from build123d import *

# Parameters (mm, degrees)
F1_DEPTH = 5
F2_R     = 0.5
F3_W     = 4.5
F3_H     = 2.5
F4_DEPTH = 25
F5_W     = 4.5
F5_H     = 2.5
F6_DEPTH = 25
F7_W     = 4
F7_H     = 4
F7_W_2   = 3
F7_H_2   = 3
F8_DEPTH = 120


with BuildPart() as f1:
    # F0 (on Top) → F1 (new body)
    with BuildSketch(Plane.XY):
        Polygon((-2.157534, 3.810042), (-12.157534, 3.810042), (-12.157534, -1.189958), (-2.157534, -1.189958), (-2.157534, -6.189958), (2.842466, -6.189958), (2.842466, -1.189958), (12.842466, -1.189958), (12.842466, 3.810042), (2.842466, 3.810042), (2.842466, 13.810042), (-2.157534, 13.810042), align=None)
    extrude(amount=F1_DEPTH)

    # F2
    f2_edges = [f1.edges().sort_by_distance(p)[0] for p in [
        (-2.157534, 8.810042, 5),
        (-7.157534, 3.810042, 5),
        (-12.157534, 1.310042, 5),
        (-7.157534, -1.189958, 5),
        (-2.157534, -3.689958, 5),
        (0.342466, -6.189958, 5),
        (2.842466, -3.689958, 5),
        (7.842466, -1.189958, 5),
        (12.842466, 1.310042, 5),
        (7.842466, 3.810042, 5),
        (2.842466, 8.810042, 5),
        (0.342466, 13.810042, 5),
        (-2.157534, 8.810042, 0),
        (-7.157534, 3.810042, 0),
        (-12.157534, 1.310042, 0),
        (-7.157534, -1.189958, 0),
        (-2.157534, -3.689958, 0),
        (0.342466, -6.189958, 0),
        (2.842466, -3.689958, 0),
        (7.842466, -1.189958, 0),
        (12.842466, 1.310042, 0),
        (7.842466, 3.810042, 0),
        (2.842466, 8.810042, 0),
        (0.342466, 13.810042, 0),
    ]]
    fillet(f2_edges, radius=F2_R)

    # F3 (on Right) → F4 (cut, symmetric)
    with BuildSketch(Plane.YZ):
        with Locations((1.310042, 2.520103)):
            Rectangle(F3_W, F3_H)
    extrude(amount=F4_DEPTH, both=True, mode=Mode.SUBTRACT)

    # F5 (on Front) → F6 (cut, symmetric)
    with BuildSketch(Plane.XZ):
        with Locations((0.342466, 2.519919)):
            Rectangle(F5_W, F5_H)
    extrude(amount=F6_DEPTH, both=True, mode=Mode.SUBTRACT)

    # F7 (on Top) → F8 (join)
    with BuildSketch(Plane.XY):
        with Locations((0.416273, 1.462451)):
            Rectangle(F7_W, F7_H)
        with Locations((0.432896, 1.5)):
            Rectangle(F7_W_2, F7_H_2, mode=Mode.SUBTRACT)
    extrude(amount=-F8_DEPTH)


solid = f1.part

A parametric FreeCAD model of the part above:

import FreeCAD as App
import Part
import Sketcher


def edges_at(feature, points):
    """Names of the edges that pass closest to the given points."""
    edges = feature.Shape.Edges
    near = lambda p: min(range(len(edges)), key=lambda i: edges[i].distToShape(Part.Vertex(*p))[0])
    return sorted({f"Edge{near(p) + 1}" for p in points})


def add_polygon(sketch, points):
    """Adds a closed chain of lines whose ends are joined by coincident constraints."""
    first, n = sketch.GeometryCount, len(points)
    for a, b in zip(points, points[1:] + points[:1]):
        sketch.addGeometry(Part.LineSegment(App.Vector(*a, 0), App.Vector(*b, 0)), False)
    for i in range(n):
        sketch.addConstraint(Sketcher.Constraint("Coincident", first + i, 2, first + (i + 1) % n, 1))

doc = App.newDocument("Part")
body = doc.addObject("PartDesign::Body", "Body")

# Sketch on XY plane
sketch1 = body.newObject("Sketcher::SketchObject", "Sketch")
sketch1.AttachmentSupport = (doc.getObject("XY_Plane"), [""])
sketch1.MapMode = "FlatFace"
add_polygon(sketch1, [(-2, 4), (-12, 4), (-12, -1), (-2, -1), (-2, -6), (3, -6), (3, -1), (13, -1), (13, 4), (3, 4), (3, 14), (-2, 14)])  # lines 0-11
sketch1.addConstraint(Sketcher.Constraint("Horizontal", 0))
sketch1.addConstraint(Sketcher.Constraint("Vertical", 1))
sketch1.addConstraint(Sketcher.Constraint("Horizontal", 2))
sketch1.addConstraint(Sketcher.Constraint("Vertical", 3))
sketch1.addConstraint(Sketcher.Constraint("Horizontal", 4))
sketch1.addConstraint(Sketcher.Constraint("Vertical", 5))
sketch1.addConstraint(Sketcher.Constraint("Horizontal", 6))
sketch1.addConstraint(Sketcher.Constraint("Vertical", 7))
sketch1.addConstraint(Sketcher.Constraint("Horizontal", 8))
sketch1.addConstraint(Sketcher.Constraint("Vertical", 9))
sketch1.addConstraint(Sketcher.Constraint("Horizontal", 10))
sketch1.addConstraint(Sketcher.Constraint("Vertical", 11))
sketch1.addConstraint(Sketcher.Constraint("Horizontal", 2, 2, 5, 2))
sketch1.addConstraint(Sketcher.Constraint("Horizontal", 0, 2, 7, 2))
sketch1.addConstraint(Sketcher.Constraint("Vertical", 5, 2, 8, 2))
sketch1.addConstraint(Sketcher.Constraint("Vertical", 3, 2, 10, 2))
sketch1.addConstraint(Sketcher.Constraint("Equal", 2, 6))
sketch1.addConstraint(Sketcher.Constraint("Equal", 10, 1))
sketch1.addConstraint(Sketcher.Constraint("Equal", 1, 3))
sketch1.addConstraint(Sketcher.Constraint("Equal", 8, 9))
sketch1.addConstraint(Sketcher.Constraint("DistanceX", 0, 2, 0, 1, 10.0))
sketch1.addConstraint(Sketcher.Constraint("DistanceX", 4, 1, 4, 2, 5.0))
sketch1.addConstraint(Sketcher.Constraint("DistanceY", 1, 2, -1, 1, 1.189958))
sketch1.addConstraint(Sketcher.Constraint("DistanceX", 0, 2, -1, 1, 12.157534))
pad1 = body.newObject("PartDesign::Pad", "Pad")
pad1.Profile = sketch1
pad1.Length = 5
doc.recompute()

fillet = body.newObject("PartDesign::Fillet", "Fillet")
fillet.Base = (pad1, edges_at(pad1, [
    (-2.158, 8.81, 5),
    (-7.158, 3.81, 5),
    (-12.158, 1.31, 5),
    (-7.158, -1.19, 5),
    (-2.158, -3.69, 5),
    (0.342, -6.19, 5),
    (2.842, -3.69, 5),
    (7.842, -1.19, 5),
    (12.842, 1.31, 5),
    (7.842, 3.81, 5),
    (2.842, 8.81, 5),
    (0.342, 13.81, 5),
    (-2.158, 8.81, 0),
    (-7.158, 3.81, 0),
    (-12.158, 1.31, 0),
    (-7.158, -1.19, 0),
    (-2.158, -3.69, 0),
    (0.342, -6.19, 0),
    (2.842, -3.69, 0),
    (7.842, -1.19, 0),
    (12.842, 1.31, 0),
    (7.842, 3.81, 0),
    (2.842, 8.81, 0),
    (0.342, 13.81, 0),
]))
fillet.Radius = 0.5

# Sketch on YZ plane
sketch2 = body.newObject("Sketcher::SketchObject", "Sketch001")
sketch2.AttachmentSupport = (doc.getObject("YZ_Plane"), [""])
sketch2.MapMode = "FlatFace"
add_polygon(sketch2, [(-0.9, 3.8), (-0.9, 1.3), (3.6, 1.3), (3.6, 3.8)])  # lines 0-3
sketch2.addConstraint(Sketcher.Constraint("Vertical", 0))
sketch2.addConstraint(Sketcher.Constraint("Horizontal", 1))
sketch2.addConstraint(Sketcher.Constraint("Vertical", 2))
sketch2.addConstraint(Sketcher.Constraint("Horizontal", 3))
sketch2.addConstraint(Sketcher.Constraint("DistanceX", 1, 1, 1, 2, 4.5))
sketch2.addConstraint(Sketcher.Constraint("DistanceY", 0, 2, 0, 1, 2.5))
sketch2.addConstraint(Sketcher.Constraint("DistanceX", 0, 2, -1, 1, 0.939958))
sketch2.addConstraint(Sketcher.Constraint("DistanceY", -1, 1, 0, 2, 1.270103))
pocket1 = body.newObject("PartDesign::Pocket", "Pocket")
pocket1.Profile = sketch2
pocket1.Length = 50
pocket1.Midplane = True

# Sketch on XZ plane
sketch3 = body.newObject("Sketcher::SketchObject", "Sketch002")
sketch3.AttachmentSupport = (doc.getObject("XZ_Plane"), [""])
sketch3.MapMode = "FlatFace"
add_polygon(sketch3, [(-1.9, 3.8), (-1.9, 1.3), (2.6, 1.3), (2.6, 3.8)])  # lines 0-3
sketch3.addConstraint(Sketcher.Constraint("Vertical", 0))
sketch3.addConstraint(Sketcher.Constraint("Horizontal", 1))
sketch3.addConstraint(Sketcher.Constraint("Vertical", 2))
sketch3.addConstraint(Sketcher.Constraint("Horizontal", 3))
sketch3.addConstraint(Sketcher.Constraint("DistanceX", 1, 1, 1, 2, 4.5))
sketch3.addConstraint(Sketcher.Constraint("DistanceY", 0, 2, 0, 1, 2.5))
sketch3.addConstraint(Sketcher.Constraint("DistanceY", -1, 1, 0, 2, 1.269919))
sketch3.addConstraint(Sketcher.Constraint("DistanceX", 0, 2, -1, 1, 1.907534))
pocket2 = body.newObject("PartDesign::Pocket", "Pocket001")
pocket2.Profile = sketch3
pocket2.Length = 50
pocket2.Midplane = True

# Sketch on XY plane
sketch4 = body.newObject("Sketcher::SketchObject", "Sketch003")
sketch4.AttachmentSupport = (doc.getObject("XY_Plane"), [""])
sketch4.MapMode = "FlatFace"
add_polygon(sketch4, [(-1.6, 3.5), (-1.6, -0.5), (2.4, -0.5), (2.4, 3.5)])  # lines 0-3
add_polygon(sketch4, [(1.9, 0), (-1.1, 0), (-1.1, 3), (1.9, 3)])  # lines 4-7
sketch4.addConstraint(Sketcher.Constraint("Vertical", 0))
sketch4.addConstraint(Sketcher.Constraint("Horizontal", 1))
sketch4.addConstraint(Sketcher.Constraint("Vertical", 2))
sketch4.addConstraint(Sketcher.Constraint("Horizontal", 3))
sketch4.addConstraint(Sketcher.Constraint("Horizontal", 4))
sketch4.addConstraint(Sketcher.Constraint("Vertical", 5))
sketch4.addConstraint(Sketcher.Constraint("Horizontal", 6))
sketch4.addConstraint(Sketcher.Constraint("Vertical", 7))
sketch4.addConstraint(Sketcher.Constraint("PointOnObject", 4, 2, -1))
sketch4.addConstraint(Sketcher.Constraint("Equal", 3, 0))
sketch4.addConstraint(Sketcher.Constraint("Equal", 6, 5))
sketch4.addConstraint(Sketcher.Constraint("DistanceX", 1, 1, 1, 2, 4.0))
sketch4.addConstraint(Sketcher.Constraint("DistanceX", 4, 2, 4, 1, 3.0))
sketch4.addConstraint(Sketcher.Constraint("DistanceY", 0, 2, -1, 1, 0.537549))
sketch4.addConstraint(Sketcher.Constraint("DistanceX", 0, 2, -1, 1, 1.583727))
sketch4.addConstraint(Sketcher.Constraint("DistanceX", 4, 2, -1, 1, 1.067104))
pad2 = body.newObject("PartDesign::Pad", "Pad001")
pad2.Profile = sketch4
pad2.Length = 120
pad2.Reversed = True

doc.recompute()
